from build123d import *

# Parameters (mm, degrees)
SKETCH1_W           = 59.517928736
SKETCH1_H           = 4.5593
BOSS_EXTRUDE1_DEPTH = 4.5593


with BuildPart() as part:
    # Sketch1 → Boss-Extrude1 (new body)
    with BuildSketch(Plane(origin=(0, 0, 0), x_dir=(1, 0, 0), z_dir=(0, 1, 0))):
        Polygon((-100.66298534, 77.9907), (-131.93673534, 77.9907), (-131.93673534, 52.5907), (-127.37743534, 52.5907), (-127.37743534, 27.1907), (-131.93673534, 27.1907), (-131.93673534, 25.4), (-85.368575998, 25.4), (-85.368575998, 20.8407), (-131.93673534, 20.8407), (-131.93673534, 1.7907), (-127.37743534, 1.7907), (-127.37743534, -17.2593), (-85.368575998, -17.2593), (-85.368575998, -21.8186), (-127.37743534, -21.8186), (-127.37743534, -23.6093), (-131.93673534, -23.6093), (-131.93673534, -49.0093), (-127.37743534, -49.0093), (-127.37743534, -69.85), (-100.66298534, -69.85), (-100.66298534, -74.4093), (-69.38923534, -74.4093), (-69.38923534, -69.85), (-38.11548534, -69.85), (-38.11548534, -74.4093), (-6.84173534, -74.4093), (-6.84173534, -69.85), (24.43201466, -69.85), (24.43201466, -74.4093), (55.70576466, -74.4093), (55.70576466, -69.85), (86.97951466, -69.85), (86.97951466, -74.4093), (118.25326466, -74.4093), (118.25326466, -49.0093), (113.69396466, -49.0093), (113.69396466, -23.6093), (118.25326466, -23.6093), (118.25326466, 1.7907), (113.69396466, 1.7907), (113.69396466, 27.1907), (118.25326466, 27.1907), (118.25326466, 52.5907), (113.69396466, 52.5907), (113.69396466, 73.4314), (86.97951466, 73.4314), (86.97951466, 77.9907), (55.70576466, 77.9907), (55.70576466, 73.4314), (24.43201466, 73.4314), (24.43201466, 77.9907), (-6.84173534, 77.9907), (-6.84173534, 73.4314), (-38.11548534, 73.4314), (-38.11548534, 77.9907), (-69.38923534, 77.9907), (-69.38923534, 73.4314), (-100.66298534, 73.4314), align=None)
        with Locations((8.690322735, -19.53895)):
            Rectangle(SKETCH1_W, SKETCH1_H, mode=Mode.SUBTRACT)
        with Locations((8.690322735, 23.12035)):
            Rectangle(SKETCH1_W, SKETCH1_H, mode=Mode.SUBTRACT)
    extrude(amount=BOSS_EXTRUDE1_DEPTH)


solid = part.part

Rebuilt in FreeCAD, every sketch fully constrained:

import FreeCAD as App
import Part
import Sketcher
Q = App.Units.Quantity

doc = App.newDocument("Part")
body = doc.addObject("PartDesign::Body", "Body")

# Sketch on XZ plane
sketch1 = body.newObject("Sketcher::SketchObject", "Sketch")
sketch1.AttachmentSupport = (doc.getObject("XZ_Plane"), [""])
sketch1.MapMode = "FlatFace"
sketch1.addGeometry([
    Part.LineSegment(App.Vector(-100.662985, -77.9907, 0), App.Vector(-131.936735, -77.9907, 0)),  # 0
    Part.LineSegment(App.Vector(-131.936735, -77.9907, 0), App.Vector(-131.936735, -52.5907, 0)),  # 1
    Part.LineSegment(App.Vector(-131.936735, -52.5907, 0), App.Vector(-127.377435, -52.5907, 0)),  # 2
    Part.LineSegment(App.Vector(-127.377435, -52.5907, 0), App.Vector(-127.377435, -27.1907, 0)),  # 3
    Part.LineSegment(App.Vector(-127.377435, -27.1907, 0), App.Vector(-131.936735, -27.1907, 0)),  # 4
    Part.LineSegment(App.Vector(-131.936735, -27.1907, 0), App.Vector(-131.936735, -25.4, 0)),  # 5
    Part.LineSegment(App.Vector(-131.936735, -25.4, 0), App.Vector(-85.368576, -25.4, 0)),  # 6
    Part.LineSegment(App.Vector(-85.368576, -25.4, 0), App.Vector(-85.368576, -20.8407, 0)),  # 7
    Part.LineSegment(App.Vector(-85.368576, -20.8407, 0), App.Vector(-131.936735, -20.8407, 0)),  # 8
    Part.LineSegment(App.Vector(-131.936735, -20.8407, 0), App.Vector(-131.936735, -1.7907, 0)),  # 9
    Part.LineSegment(App.Vector(-131.936735, -1.7907, 0), App.Vector(-127.377435, -1.7907, 0)),  # 10
    Part.LineSegment(App.Vector(-127.377435, -1.7907, 0), App.Vector(-127.377435, 17.2593, 0)),  # 11
    Part.LineSegment(App.Vector(-127.377435, 17.2593, 0), App.Vector(-85.368576, 17.2593, 0)),  # 12
    Part.LineSegment(App.Vector(-85.368576, 17.2593, 0), App.Vector(-85.368576, 21.8186, 0)),  # 13
    Part.LineSegment(App.Vector(-85.368576, 21.8186, 0), App.Vector(-127.377435, 21.8186, 0)),  # 14
    Part.LineSegment(App.Vector(-127.377435, 21.8186, 0), App.Vector(-127.377435, 23.6093, 0)),  # 15
    Part.LineSegment(App.Vector(-127.377435, 23.6093, 0), App.Vector(-131.936735, 23.6093, 0)),  # 16
    Part.LineSegment(App.Vector(-131.936735, 23.6093, 0), App.Vector(-131.936735, 49.0093, 0)),  # 17
    Part.LineSegment(App.Vector(-131.936735, 49.0093, 0), App.Vector(-127.377435, 49.0093, 0)),  # 18
    Part.LineSegment(App.Vector(-127.377435, 49.0093, 0), App.Vector(-127.377435, 69.85, 0)),  # 19
    Part.LineSegment(App.Vector(-127.377435, 69.85, 0), App.Vector(-100.662985, 69.85, 0)),  # 20
    Part.LineSegment(App.Vector(-100.662985, 69.85, 0), App.Vector(-100.662985, 74.4093, 0)),  # 21
    Part.LineSegment(App.Vector(-100.662985, 74.4093, 0), App.Vector(-69.389235, 74.4093, 0)),  # 22
    Part.LineSegment(App.Vector(-69.389235, 74.4093, 0), App.Vector(-69.389235, 69.85, 0)),  # 23
    Part.LineSegment(App.Vector(-69.389235, 69.85, 0), App.Vector(-38.115485, 69.85, 0)),  # 24
    Part.LineSegment(App.Vector(-38.115485, 69.85, 0), App.Vector(-38.115485, 74.4093, 0)),  # 25
    Part.LineSegment(App.Vector(-38.115485, 74.4093, 0), App.Vector(-6.841735, 74.4093, 0)),  # 26
    Part.LineSegment(App.Vector(-6.841735, 74.4093, 0), App.Vector(-6.841735, 69.85, 0)),  # 27
    Part.LineSegment(App.Vector(-6.841735, 69.85, 0), App.Vector(24.432015, 69.85, 0)),  # 28
    Part.LineSegment(App.Vector(24.432015, 69.85, 0), App.Vector(24.432015, 74.4093, 0)),  # 29
    Part.LineSegment(App.Vector(24.432015, 74.4093, 0), App.Vector(55.705765, 74.4093, 0)),  # 30
    Part.LineSegment(App.Vector(55.705765, 74.4093, 0), App.Vector(55.705765, 69.85, 0)),  # 31
    Part.LineSegment(App.Vector(55.705765, 69.85, 0), App.Vector(86.979515, 69.85, 0)),  # 32
    Part.LineSegment(App.Vector(86.979515, 69.85, 0), App.Vector(86.979515, 74.4093, 0)),  # 33
    Part.LineSegment(App.Vector(86.979515, 74.4093, 0), App.Vector(118.253265, 74.4093, 0)),  # 34
    Part.LineSegment(App.Vector(118.253265, 74.4093, 0), App.Vector(118.253265, 49.0093, 0)),  # 35
    Part.LineSegment(App.Vector(118.253265, 49.0093, 0), App.Vector(113.693965, 49.0093, 0)),  # 36
    Part.LineSegment(App.Vector(113.693965, 49.0093, 0), App.Vector(113.693965, 23.6093, 0)),  # 37
    Part.LineSegment(App.Vector(113.693965, 23.6093, 0), App.Vector(118.253265, 23.6093, 0)),  # 38
    Part.LineSegment(App.Vector(118.253265, 23.6093, 0), App.Vector(118.253265, -1.7907, 0)),  # 39
    Part.LineSegment(App.Vector(118.253265, -1.7907, 0), App.Vector(113.693965, -1.7907, 0)),  # 40
    Part.LineSegment(App.Vector(113.693965, -1.7907, 0), App.Vector(113.693965, -27.1907, 0)),  # 41
    Part.LineSegment(App.Vector(113.693965, -27.1907, 0), App.Vector(118.253265, -27.1907, 0)),  # 42
    Part.LineSegment(App.Vector(118.253265, -27.1907, 0), App.Vector(118.253265, -52.5907, 0)),  # 43
    Part.LineSegment(App.Vector(118.253265, -52.5907, 0), App.Vector(113.693965, -52.5907, 0)),  # 44
    Part.LineSegment(App.Vector(113.693965, -52.5907, 0), App.Vector(113.693965, -73.4314, 0)),  # 45
    Part.LineSegment(App.Vector(113.693965, -73.4314, 0), App.Vector(86.979515, -73.4314, 0)),  # 46
    Part.LineSegment(App.Vector(86.979515, -73.4314, 0), App.Vector(86.979515, -77.9907, 0)),  # 47
    Part.LineSegment(App.Vector(86.979515, -77.9907, 0), App.Vector(55.705765, -77.9907, 0)),  # 48
    Part.LineSegment(App.Vector(55.705765, -77.9907, 0), App.Vector(55.705765, -73.4314, 0)),  # 49
    Part.LineSegment(App.Vector(55.705765, -73.4314, 0), App.Vector(24.432015, -73.4314, 0)),  # 50
    Part.LineSegment(App.Vector(24.432015, -73.4314, 0), App.Vector(24.432015, -77.9907, 0)),  # 51
    Part.LineSegment(App.Vector(24.432015, -77.9907, 0), App.Vector(-6.841735, -77.9907, 0)),  # 52
    Part.LineSegment(App.Vector(-6.841735, -77.9907, 0), App.Vector(-6.841735, -73.4314, 0)),  # 53
    Part.LineSegment(App.Vector(-6.841735, -73.4314, 0), App.Vector(-38.115485, -73.4314, 0)),  # 54
    Part.LineSegment(App.Vector(-38.115485, -73.4314, 0), App.Vector(-38.115485, -77.9907, 0)),  # 55
    Part.LineSegment(App.Vector(-38.115485, -77.9907, 0), App.Vector(-69.389235, -77.9907, 0)),  # 56
    Part.LineSegment(App.Vector(-69.389235, -77.9907, 0), App.Vector(-69.389235, -73.4314, 0)),  # 57
    Part.LineSegment(App.Vector(-69.389235, -73.4314, 0), App.Vector(-100.662985, -73.4314, 0)),  # 58
    Part.LineSegment(App.Vector(-100.662985, -73.4314, 0), App.Vector(-100.662985, -77.9907, 0)),  # 59
    Part.LineSegment(App.Vector(38.449287, 21.8186, 0), App.Vector(-21.068642, 21.8186, 0)),  # 60
    Part.LineSegment(App.Vector(-21.068642, 21.8186, 0), App.Vector(-21.068642, 17.2593, 0)),  # 61
    Part.LineSegment(App.Vector(-21.068642, 17.2593, 0), App.Vector(38.449287, 17.2593, 0)),  # 62
    Part.LineSegment(App.Vector(38.449287, 17.2593, 0), App.Vector(38.449287, 21.8186, 0)),  # 63
    Part.LineSegment(App.Vector(38.449287, -20.8407, 0), App.Vector(-21.068642, -20.8407, 0)),  # 64
    Part.LineSegment(App.Vector(-21.068642, -20.8407, 0), App.Vector(-21.068642, -25.4, 0)),  # 65
    Part.LineSegment(App.Vector(-21.068642, -25.4, 0), App.Vector(38.449287, -25.4, 0)),  # 66
    Part.LineSegment(App.Vector(38.449287, -25.4, 0), App.Vector(38.449287, -20.8407, 0)),  # 67
], False)
sketch1.addConstraint([
    Sketcher.Constraint("Coincident", 0, 2, 1, 1),
    Sketcher.Constraint("Coincident", 1, 2, 2, 1),
    Sketcher.Constraint("Coincident", 2, 2, 3, 1),
    Sketcher.Constraint("Coincident", 3, 2, 4, 1),
    Sketcher.Constraint("Coincident", 4, 2, 5, 1),
    Sketcher.Constraint("Coincident", 5, 2, 6, 1),
    Sketcher.Constraint("Coincident", 6, 2, 7, 1),
    Sketcher.Constraint("Coincident", 7, 2, 8, 1),
    Sketcher.Constraint("Coincident", 8, 2, 9, 1),
    Sketcher.Constraint("Coincident", 9, 2, 10, 1),
    Sketcher.Constraint("Coincident", 10, 2, 11, 1),
    Sketcher.Constraint("Coincident", 11, 2, 12, 1),
    Sketcher.Constraint("Coincident", 12, 2, 13, 1),
    Sketcher.Constraint("Coincident", 13, 2, 14, 1),
    Sketcher.Constraint("Coincident", 14, 2, 15, 1),
    Sketcher.Constraint("Coincident", 15, 2, 16, 1),
    Sketcher.Constraint("Coincident", 16, 2, 17, 1),
    Sketcher.Constraint("Coincident", 17, 2, 18, 1),
    Sketcher.Constraint("Coincident", 18, 2, 19, 1),
    Sketcher.Constraint("Coincident", 19, 2, 20, 1),
    Sketcher.Constraint("Coincident", 20, 2, 21, 1),
    Sketcher.Constraint("Coincident", 21, 2, 22, 1),
    Sketcher.Constraint("Coincident", 22, 2, 23, 1),
    Sketcher.Constraint("Coincident", 23, 2, 24, 1),
    Sketcher.Constraint("Coincident", 24, 2, 25, 1),
    Sketcher.Constraint("Coincident", 25, 2, 26, 1),
    Sketcher.Constraint("Coincident", 26, 2, 27, 1),
    Sketcher.Constraint("Coincident", 27, 2, 28, 1),
    Sketcher.Constraint("Coincident", 28, 2, 29, 1),
    Sketcher.Constraint("Coincident", 29, 2, 30, 1),
    Sketcher.Constraint("Coincident", 30, 2, 31, 1),
    Sketcher.Constraint("Coincident", 31, 2, 32, 1),
    Sketcher.Constraint("Coincident", 32, 2, 33, 1),
    Sketcher.Constraint("Coincident", 33, 2, 34, 1),
    Sketcher.Constraint("Coincident", 34, 2, 35, 1),
    Sketcher.Constraint("Coincident", 35, 2, 36, 1),
    Sketcher.Constraint("Coincident", 36, 2, 37, 1),
    Sketcher.Constraint("Coincident", 37, 2, 38, 1),
    Sketcher.Constraint("Coincident", 38, 2, 39, 1),
    Sketcher.Constraint("Coincident", 39, 2, 40, 1),
    Sketcher.Constraint("Coincident", 40, 2, 41, 1),
    Sketcher.Constraint("Coincident", 41, 2, 42, 1),
    Sketcher.Constraint("Coincident", 42, 2, 43, 1),
    Sketcher.Constraint("Coincident", 43, 2, 44, 1),
    Sketcher.Constraint("Coincident", 44, 2, 45, 1),
    Sketcher.Constraint("Coincident", 45, 2, 46, 1),
    Sketcher.Constraint("Coincident", 46, 2, 47, 1),
    Sketcher.Constraint("Coincident", 47, 2, 48, 1),
    Sketcher.Constraint("Coincident", 48, 2, 49, 1),
    Sketcher.Constraint("Coincident", 49, 2, 50, 1),
    Sketcher.Constraint("Coincident", 50, 2, 51, 1),
    Sketcher.Constraint("Coincident", 51, 2, 52, 1),
    Sketcher.Constraint("Coincident", 52, 2, 53, 1),
    Sketcher.Constraint("Coincident", 53, 2, 54, 1),
    Sketcher.Constraint("Coincident", 54, 2, 55, 1),
    Sketcher.Constraint("Coincident", 55, 2, 56, 1),
    Sketcher.Constraint("Coincident", 56, 2, 57, 1),
    Sketcher.Constraint("Coincident", 57, 2, 58, 1),
    Sketcher.Constraint("Coincident", 58, 2, 59, 1),
    Sketcher.Constraint("Coincident", 59, 2, 0, 1),
    Sketcher.Constraint("Coincident", 60, 2, 61, 1),
    Sketcher.Constraint("Coincident", 61, 2, 62, 1),
    Sketcher.Constraint("Coincident", 62, 2, 63, 1),
    Sketcher.Constraint("Coincident", 63, 2, 60, 1),
    Sketcher.Constraint("Coincident", 64, 2, 65, 1),
    Sketcher.Constraint("Coincident", 65, 2, 66, 1),
    Sketcher.Constraint("Coincident", 66, 2, 67, 1),
    Sketcher.Constraint("Coincident", 67, 2, 64, 1),
    Sketcher.Constraint("Horizontal", 0),
    Sketcher.Constraint("Vertical", 1),
    Sketcher.Constraint("Horizontal", 2),
    Sketcher.Constraint("Vertical", 3),
    Sketcher.Constraint("Horizontal", 4),
    Sketcher.Constraint("Vertical", 5),
    Sketcher.Constraint("Horizontal", 6),
    Sketcher.Constraint("Vertical", 7),
    Sketcher.Constraint("Horizontal", 8),
    Sketcher.Constraint("Vertical", 9),
    Sketcher.Constraint("Horizontal", 10),
    Sketcher.Constraint("Vertical", 11),
    Sketcher.Constraint("Horizontal", 12),
    Sketcher.Constraint("Vertical", 13),
    Sketcher.Constraint("Horizontal", 14),
    Sketcher.Constraint("Vertical", 15),
    Sketcher.Constraint("Horizontal", 16),
    Sketcher.Constraint("Vertical", 17),
    Sketcher.Constraint("Horizontal", 18),
    Sketcher.Constraint("Vertical", 19),
    Sketcher.Constraint("Horizontal", 20),
    Sketcher.Constraint("Vertical", 21),
    Sketcher.Constraint("Horizontal", 22),
    Sketcher.Constraint("Vertical", 23),
    Sketcher.Constraint("Horizontal", 24),
    Sketcher.Constraint("Vertical", 25),
    Sketcher.Constraint("Horizontal", 26),
    Sketcher.Constraint("Vertical", 27),
    Sketcher.Constraint("Horizontal", 28),
    Sketcher.Constraint("Vertical", 29),
    Sketcher.Constraint("Horizontal", 30),
    Sketcher.Constraint("Vertical", 31),
    Sketcher.Constraint("Horizontal", 32),
    Sketcher.Constraint("Vertical", 33),
    Sketcher.Constraint("Horizontal", 34),
    Sketcher.Constraint("Vertical", 35),
    Sketcher.Constraint("Horizontal", 36),
    Sketcher.Constraint("Vertical", 37),
    Sketcher.Constraint("Horizontal", 38),
    Sketcher.Constraint("Vertical", 39),
    Sketcher.Constraint("Horizontal", 40),
    Sketcher.Constraint("Vertical", 41),
    Sketcher.Constraint("Horizontal", 42),
    Sketcher.Constraint("Vertical", 43),
    Sketcher.Constraint("Horizontal", 44),
    Sketcher.Constraint("Vertical", 45),
    Sketcher.Constraint("Horizontal", 46),
    Sketcher.Constraint("Vertical", 47),
    Sketcher.Constraint("Horizontal", 48),
    Sketcher.Constraint("Vertical", 49),
    Sketcher.Constraint("Horizontal", 50),
    Sketcher.Constraint("Vertical", 51),
    Sketcher.Constraint("Horizontal", 52),
    Sketcher.Constraint("Vertical", 53),
    Sketcher.Constraint("Horizontal", 54),
    Sketcher.Constraint("Vertical", 55),
    Sketcher.Constraint("Horizontal", 56),
    Sketcher.Constraint("Vertical", 57),
    Sketcher.Constraint("Horizontal", 58),
    Sketcher.Constraint("Vertical", 59),
    Sketcher.Constraint("Horizontal", 60),
    Sketcher.Constraint("Vertical", 61),
    Sketcher.Constraint("Horizontal", 62),
    Sketcher.Constraint("Vertical", 63),
    Sketcher.Constraint("Horizontal", 64),
    Sketcher.Constraint("Vertical", 65),
    Sketcher.Constraint("Horizontal", 66),
    Sketcher.Constraint("Vertical", 67),
    Sketcher.Constraint("Horizontal", 20, 2, 23, 2),
    Sketcher.Constraint("Horizontal", 22, 2, 25, 2),
    Sketcher.Constraint("Horizontal", 24, 2, 27, 2),
    Sketcher.Constraint("Horizontal", 26, 2, 29, 2),
    Sketcher.Constraint("Horizontal", 28, 2, 31, 2),
    Sketcher.Constraint("Horizontal", 30, 2, 33, 2),
    Sketcher.Constraint("Horizontal", 18, 2, 35, 2),
    Sketcher.Constraint("Horizontal", 16, 2, 37, 2),
    Sketcher.Constraint("Horizontal", 10, 2, 39, 2),
    Sketcher.Constraint("Horizontal", 4, 2, 41, 2),
    Sketcher.Constraint("Horizontal", 2, 2, 43, 2),
    Sketcher.Constraint("Horizontal", 0, 2, 47, 2),
    Sketcher.Constraint("Horizontal", 46, 2, 49, 2),
    Sketcher.Constraint("Horizontal", 48, 2, 51, 2),
    Sketcher.Constraint("Horizontal", 50, 2, 53, 2),
    Sketcher.Constraint("Horizontal", 52, 2, 55, 2),
    Sketcher.Constraint("Horizontal", 54, 2, 57, 2),
    Sketcher.Constraint("Horizontal", 14, 2, 60, 2),
    Sketcher.Constraint("Horizontal", 12, 2, 61, 2),
    Sketcher.Constraint("Horizontal", 8, 2, 64, 2),
    Sketcher.Constraint("Horizontal", 6, 2, 65, 2),
    Sketcher.Constraint("Vertical", 1, 2, 4, 2),
    Sketcher.Constraint("Vertical", 5, 2, 8, 2),
    Sketcher.Constraint("Vertical", 3, 2, 10, 2),
    Sketcher.Constraint("Vertical", 7, 2, 12, 2),
    Sketcher.Constraint("Vertical", 11, 2, 14, 2),
    Sketcher.Constraint("Vertical", 9, 2, 16, 2),
    Sketcher.Constraint("Vertical", 15, 2, 18, 2),
    Sketcher.Constraint("Vertical", 35, 2, 38, 2),
    Sketcher.Constraint("Vertical", 37, 2, 40, 2),
    Sketcher.Constraint("Vertical", 39, 2, 42, 2),
    Sketcher.Constraint("Vertical", 41, 2, 44, 2),
    Sketcher.Constraint("Vertical", 33, 2, 46, 2),
    Sketcher.Constraint("Vertical", 31, 2, 48, 2),
    Sketcher.Constraint("Vertical", 29, 2, 50, 2),
    Sketcher.Constraint("Vertical", 27, 2, 52, 2),
    Sketcher.Constraint("Vertical", 25, 2, 54, 2),
    Sketcher.Constraint("Vertical", 23, 2, 56, 2),
    Sketcher.Constraint("Vertical", 21, 2, 58, 2),
    Sketcher.Constraint("Vertical", 61, 2, 64, 2),
    Sketcher.Constraint("Vertical", 63, 2, 66, 2),
    Sketcher.Constraint("Equal", 0, 22),
    Sketcher.Constraint("Equal", 22, 24),
    Sketcher.Constraint("Equal", 24, 26),
    Sketcher.Constraint("Equal", 26, 28),
    Sketcher.Constraint("Equal", 28, 30),
    Sketcher.Constraint("Equal", 30, 32),
    Sketcher.Constraint("Equal", 32, 34),
    Sketcher.Constraint("Equal", 18, 36),
    Sketcher.Constraint("Equal", 1, 3),
    Sketcher.Constraint("Equal", 44, 7),
    Sketcher.Constraint("Equal", 9, 11),
    Sketcher.Constraint("Equal", 7, 13),
    Sketcher.Constraint("Equal", 5, 15),
    Sketcher.Constraint("Equal", 3, 17),
    Sketcher.Constraint("Equal", 13, 21),
    Sketcher.Constraint("Equal", 17, 35),
    Sketcher.Constraint("Equal", 37, 39),
    Sketcher.Constraint("Equal", 19, 45),
    Sketcher.Constraint("DistanceY", 1, 1, 1, 2, Q("1 in")),
    Sketcher.Constraint("DistanceY", 5, 2, -1, 1, Q("1 in")),
    Sketcher.Constraint("DistanceY", 9, 1, 9, 2, Q("0.75 in")),
    Sketcher.Constraint("DistanceX", 2, 1, 2, 2, Q("0.1795 in")),
    Sketcher.Constraint("DistanceX", 0, 2, 0, 1, 31.27375),
    Sketcher.Constraint("DistanceX", 6, 1, 6, 2, 46.568159),
    Sketcher.Constraint("DistanceX", 60, 2, 60, 1, 59.517929),
    Sketcher.Constraint("DistanceX", 60, 2, -1, 1, 21.068642),
    Sketcher.Constraint("DistanceX", 0, 2, -1, 1, 131.936735),
])
pad1 = body.newObject("PartDesign::Pad", "Pad")
pad1.Profile = sketch1
pad1.Length = Q("0.1795 in")
pad1.Reversed = True

doc.recompute()
